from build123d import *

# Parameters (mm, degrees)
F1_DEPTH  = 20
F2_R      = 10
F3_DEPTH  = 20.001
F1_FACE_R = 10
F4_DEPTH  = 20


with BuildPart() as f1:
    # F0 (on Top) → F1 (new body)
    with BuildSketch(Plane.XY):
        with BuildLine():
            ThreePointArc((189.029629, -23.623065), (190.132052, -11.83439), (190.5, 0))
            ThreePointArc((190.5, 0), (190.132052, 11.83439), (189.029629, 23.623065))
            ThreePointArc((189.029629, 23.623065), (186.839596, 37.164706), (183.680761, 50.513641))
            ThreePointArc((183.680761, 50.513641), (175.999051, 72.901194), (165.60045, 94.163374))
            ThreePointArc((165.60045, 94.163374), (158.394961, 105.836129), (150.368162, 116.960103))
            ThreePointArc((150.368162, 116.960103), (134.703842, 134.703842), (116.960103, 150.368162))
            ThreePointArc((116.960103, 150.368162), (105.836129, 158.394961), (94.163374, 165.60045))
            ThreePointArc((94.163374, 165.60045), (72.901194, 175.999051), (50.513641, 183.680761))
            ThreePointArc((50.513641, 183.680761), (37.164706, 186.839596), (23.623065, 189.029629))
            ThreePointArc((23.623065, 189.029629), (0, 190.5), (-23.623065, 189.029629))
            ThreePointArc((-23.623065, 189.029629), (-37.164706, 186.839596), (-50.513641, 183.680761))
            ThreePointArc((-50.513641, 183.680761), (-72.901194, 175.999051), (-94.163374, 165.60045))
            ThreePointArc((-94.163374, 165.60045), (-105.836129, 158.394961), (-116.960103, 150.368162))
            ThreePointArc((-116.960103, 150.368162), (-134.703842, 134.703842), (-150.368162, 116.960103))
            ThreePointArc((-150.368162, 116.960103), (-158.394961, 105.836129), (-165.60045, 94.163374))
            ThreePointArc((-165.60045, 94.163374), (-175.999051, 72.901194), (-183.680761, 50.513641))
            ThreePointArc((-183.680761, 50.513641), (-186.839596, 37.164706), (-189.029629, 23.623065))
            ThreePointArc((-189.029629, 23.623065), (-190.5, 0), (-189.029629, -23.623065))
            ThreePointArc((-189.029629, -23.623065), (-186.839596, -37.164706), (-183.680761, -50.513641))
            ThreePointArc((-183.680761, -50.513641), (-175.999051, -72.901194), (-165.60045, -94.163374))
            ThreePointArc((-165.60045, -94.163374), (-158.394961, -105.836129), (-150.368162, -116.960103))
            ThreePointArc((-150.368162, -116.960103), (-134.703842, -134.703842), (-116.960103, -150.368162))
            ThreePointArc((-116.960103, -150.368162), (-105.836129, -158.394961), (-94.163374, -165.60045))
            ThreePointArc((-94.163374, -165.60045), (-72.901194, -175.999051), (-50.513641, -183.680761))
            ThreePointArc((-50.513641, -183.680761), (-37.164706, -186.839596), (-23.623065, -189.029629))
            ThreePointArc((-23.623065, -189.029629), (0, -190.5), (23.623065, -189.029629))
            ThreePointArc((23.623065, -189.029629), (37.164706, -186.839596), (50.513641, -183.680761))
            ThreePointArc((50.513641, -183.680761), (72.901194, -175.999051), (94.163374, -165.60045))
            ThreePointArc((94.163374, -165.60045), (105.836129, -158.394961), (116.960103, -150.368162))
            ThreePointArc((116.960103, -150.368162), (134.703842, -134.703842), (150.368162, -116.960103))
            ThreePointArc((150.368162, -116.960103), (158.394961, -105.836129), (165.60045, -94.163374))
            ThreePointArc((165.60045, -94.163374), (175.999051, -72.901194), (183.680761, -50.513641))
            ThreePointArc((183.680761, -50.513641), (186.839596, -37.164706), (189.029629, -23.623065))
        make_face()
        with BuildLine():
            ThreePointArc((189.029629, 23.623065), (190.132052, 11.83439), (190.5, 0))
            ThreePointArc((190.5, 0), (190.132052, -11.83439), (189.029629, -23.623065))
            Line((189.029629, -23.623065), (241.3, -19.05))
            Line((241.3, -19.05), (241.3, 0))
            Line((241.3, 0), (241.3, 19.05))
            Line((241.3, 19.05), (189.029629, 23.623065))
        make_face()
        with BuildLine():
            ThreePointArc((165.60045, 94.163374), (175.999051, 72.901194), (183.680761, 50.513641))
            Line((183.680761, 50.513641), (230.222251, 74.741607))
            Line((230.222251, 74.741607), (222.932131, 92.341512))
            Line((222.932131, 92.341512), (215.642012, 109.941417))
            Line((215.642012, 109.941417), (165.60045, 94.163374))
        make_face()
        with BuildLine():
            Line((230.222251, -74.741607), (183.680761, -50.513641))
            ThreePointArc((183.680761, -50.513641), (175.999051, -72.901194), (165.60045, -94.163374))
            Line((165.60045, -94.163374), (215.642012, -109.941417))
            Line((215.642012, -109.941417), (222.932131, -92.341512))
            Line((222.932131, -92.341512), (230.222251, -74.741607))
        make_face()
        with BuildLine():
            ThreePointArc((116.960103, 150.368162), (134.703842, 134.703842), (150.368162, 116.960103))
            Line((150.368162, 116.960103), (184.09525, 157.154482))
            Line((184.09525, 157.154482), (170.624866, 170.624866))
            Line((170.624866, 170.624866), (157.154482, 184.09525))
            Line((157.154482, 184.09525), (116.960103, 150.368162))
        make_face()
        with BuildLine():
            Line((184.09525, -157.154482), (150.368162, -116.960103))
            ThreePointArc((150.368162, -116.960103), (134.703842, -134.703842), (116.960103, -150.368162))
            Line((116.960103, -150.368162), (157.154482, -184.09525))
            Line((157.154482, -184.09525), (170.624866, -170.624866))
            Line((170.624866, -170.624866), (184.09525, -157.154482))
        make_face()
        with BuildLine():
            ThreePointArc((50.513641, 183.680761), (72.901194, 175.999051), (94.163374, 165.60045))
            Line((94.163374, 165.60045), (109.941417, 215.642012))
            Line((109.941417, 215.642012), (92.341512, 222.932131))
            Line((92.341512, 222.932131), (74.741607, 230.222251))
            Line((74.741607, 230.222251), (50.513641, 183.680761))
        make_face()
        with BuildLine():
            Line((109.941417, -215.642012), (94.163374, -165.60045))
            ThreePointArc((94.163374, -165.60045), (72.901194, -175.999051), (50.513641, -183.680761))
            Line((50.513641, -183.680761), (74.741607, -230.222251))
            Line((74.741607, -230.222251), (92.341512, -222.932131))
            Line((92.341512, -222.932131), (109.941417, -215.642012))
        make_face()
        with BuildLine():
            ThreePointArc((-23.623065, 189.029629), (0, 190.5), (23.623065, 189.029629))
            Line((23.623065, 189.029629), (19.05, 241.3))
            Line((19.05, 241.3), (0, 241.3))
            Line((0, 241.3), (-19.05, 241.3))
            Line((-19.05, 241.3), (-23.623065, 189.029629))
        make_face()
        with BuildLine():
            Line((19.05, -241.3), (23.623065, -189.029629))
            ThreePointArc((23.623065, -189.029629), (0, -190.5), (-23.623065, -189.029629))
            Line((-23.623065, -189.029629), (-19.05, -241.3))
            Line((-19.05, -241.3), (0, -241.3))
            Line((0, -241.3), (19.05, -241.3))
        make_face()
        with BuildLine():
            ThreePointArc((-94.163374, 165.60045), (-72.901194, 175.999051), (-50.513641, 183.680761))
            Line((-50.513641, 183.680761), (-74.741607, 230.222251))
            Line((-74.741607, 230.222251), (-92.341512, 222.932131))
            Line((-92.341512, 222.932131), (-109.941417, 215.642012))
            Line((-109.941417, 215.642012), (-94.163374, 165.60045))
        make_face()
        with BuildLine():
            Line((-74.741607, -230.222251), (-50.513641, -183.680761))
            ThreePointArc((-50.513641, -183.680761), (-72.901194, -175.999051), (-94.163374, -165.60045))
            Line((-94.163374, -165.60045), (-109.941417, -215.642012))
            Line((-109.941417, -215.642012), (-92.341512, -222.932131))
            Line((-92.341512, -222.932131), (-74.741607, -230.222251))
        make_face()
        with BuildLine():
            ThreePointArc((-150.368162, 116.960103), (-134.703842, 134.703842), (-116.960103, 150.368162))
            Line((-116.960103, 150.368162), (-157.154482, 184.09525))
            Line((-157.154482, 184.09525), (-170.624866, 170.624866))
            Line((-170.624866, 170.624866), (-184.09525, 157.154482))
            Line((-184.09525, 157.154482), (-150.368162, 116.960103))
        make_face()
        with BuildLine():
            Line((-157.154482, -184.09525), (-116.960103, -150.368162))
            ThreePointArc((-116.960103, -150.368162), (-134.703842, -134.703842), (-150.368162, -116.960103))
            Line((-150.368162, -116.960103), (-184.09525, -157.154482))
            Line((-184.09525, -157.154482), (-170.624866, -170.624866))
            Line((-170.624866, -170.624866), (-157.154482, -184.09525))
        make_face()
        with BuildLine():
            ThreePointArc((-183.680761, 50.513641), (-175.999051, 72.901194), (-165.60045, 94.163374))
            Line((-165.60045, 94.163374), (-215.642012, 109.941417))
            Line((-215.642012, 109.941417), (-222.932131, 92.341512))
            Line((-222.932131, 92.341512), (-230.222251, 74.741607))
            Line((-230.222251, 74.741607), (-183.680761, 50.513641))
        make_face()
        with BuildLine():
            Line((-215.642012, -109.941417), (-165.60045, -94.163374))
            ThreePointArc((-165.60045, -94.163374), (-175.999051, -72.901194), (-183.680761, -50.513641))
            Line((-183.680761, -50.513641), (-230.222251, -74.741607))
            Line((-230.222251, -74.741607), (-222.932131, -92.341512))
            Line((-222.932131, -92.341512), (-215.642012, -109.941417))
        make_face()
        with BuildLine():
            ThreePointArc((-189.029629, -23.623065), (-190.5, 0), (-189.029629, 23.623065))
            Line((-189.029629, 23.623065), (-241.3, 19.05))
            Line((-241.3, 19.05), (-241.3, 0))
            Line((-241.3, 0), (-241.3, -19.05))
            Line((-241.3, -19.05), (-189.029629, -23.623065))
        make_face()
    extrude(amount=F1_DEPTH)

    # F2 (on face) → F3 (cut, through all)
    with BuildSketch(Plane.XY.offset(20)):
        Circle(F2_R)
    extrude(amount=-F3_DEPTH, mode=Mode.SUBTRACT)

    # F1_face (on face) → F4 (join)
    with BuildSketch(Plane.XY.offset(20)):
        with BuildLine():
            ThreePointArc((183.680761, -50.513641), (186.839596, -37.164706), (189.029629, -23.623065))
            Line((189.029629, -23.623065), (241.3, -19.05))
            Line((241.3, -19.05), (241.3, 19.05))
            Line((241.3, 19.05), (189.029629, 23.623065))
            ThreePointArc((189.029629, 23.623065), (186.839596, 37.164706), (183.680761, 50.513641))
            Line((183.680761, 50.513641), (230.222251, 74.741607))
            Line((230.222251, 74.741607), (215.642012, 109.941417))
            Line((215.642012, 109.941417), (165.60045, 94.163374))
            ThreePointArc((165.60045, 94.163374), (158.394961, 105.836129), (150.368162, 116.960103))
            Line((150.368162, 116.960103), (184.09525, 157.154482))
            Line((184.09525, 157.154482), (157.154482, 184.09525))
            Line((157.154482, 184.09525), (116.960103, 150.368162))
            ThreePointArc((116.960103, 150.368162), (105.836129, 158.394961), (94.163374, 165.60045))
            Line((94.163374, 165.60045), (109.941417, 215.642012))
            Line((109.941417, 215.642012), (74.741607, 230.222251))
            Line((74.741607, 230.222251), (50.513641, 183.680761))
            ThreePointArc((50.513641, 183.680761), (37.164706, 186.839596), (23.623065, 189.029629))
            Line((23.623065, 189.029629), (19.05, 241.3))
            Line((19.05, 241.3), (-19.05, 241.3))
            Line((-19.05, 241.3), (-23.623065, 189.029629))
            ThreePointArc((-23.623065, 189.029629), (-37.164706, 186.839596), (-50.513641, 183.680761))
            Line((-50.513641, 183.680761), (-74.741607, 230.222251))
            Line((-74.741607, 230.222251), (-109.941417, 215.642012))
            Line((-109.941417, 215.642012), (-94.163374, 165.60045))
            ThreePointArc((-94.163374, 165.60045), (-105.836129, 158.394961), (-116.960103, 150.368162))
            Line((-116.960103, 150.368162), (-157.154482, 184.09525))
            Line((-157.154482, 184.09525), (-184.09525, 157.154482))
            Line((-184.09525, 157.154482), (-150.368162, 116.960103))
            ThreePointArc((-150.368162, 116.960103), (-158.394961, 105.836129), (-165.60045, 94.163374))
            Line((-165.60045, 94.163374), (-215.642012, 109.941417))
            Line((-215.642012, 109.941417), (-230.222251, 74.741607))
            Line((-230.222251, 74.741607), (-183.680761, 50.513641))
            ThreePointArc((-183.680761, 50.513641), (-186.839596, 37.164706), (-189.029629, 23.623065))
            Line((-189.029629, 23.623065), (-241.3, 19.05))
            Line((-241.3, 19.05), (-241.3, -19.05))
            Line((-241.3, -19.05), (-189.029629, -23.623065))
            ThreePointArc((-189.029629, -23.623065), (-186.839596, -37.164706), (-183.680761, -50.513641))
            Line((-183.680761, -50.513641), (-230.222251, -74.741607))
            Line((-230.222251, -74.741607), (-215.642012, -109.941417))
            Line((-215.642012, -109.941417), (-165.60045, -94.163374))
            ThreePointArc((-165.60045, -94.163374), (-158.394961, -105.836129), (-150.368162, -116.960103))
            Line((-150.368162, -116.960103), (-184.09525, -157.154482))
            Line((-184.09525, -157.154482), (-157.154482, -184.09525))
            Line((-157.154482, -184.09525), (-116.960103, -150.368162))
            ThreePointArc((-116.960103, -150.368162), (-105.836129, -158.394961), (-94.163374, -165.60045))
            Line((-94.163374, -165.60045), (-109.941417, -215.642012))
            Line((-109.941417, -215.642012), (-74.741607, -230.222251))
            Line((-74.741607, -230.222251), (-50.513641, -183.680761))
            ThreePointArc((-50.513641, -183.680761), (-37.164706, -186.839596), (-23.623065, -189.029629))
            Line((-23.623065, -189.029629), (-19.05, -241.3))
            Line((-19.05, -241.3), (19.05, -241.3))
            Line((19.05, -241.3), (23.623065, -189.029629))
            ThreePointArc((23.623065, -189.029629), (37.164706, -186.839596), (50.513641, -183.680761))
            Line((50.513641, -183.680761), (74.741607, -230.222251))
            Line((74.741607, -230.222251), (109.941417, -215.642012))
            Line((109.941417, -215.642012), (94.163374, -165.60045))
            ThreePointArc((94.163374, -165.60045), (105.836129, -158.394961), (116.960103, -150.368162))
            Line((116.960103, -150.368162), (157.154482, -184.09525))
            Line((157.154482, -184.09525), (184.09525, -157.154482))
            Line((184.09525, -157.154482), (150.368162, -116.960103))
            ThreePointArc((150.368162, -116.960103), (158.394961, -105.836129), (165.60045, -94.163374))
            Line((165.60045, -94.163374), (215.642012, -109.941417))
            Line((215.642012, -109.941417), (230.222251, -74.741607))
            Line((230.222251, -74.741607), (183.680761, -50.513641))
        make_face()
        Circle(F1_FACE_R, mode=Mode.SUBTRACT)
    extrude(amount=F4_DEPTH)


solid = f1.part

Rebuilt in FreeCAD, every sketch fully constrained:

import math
import FreeCAD as App
import Part
import Sketcher

V = App.Vector
Q = App.Units.Quantity

doc = App.newDocument("Part")
body = doc.addObject("PartDesign::Body", "Body")

sketch1 = body.newObject("Sketcher::SketchObject", "Sketch")
sketch1.AttachmentSupport = (doc.getObject("XY_Plane"), [""])
sketch1.MapMode = "FlatFace"
sketch1.addGeometry(Part.ArcOfCircle(Part.Circle(V(0, 0, 0), V(0, 0, 1), 190), math.radians(7.12), math.radians(15.38)), False)
sketch1.addGeometry(Part.LineSegment(V(184, 51, 0), V(230, 75, 0)), False)
sketch1.addGeometry(Part.LineSegment(V(230, 75, 0), V(223, 92, 0)), False)
sketch1.addGeometry(Part.LineSegment(V(223, 92, 0), V(216, 110, 0)), False)
sketch1.addGeometry(Part.LineSegment(V(216, 110, 0), V(166, 94, 0)), False)
sketch1.addGeometry(Part.ArcOfCircle(Part.Circle(V(0, 0, 0), V(0, 0, 1), 191), math.radians(29.62), math.radians(37.88)), False)
sketch1.addGeometry(Part.LineSegment(V(150, 117, 0), V(184, 157, 0)), False)
sketch1.addGeometry(Part.LineSegment(V(184, 157, 0), V(157, 184, 0)), False)
sketch1.addGeometry(Part.LineSegment(V(157, 184, 0), V(117, 150, 0)), False)
sketch1.addGeometry(Part.ArcOfCircle(Part.Circle(V(0, 0, 0), V(0, 0, 1), 191), math.radians(52.12), math.radians(60.38)), False)
sketch1.addGeometry(Part.LineSegment(V(94, 166, 0), V(110, 216, 0)), False)
sketch1.addGeometry(Part.LineSegment(V(110, 216, 0), V(92, 223, 0)), False)
sketch1.addGeometry(Part.LineSegment(V(92, 223, 0), V(75, 230, 0)), False)
sketch1.addGeometry(Part.LineSegment(V(75, 230, 0), V(51, 184, 0)), False)
sketch1.addGeometry(Part.ArcOfCircle(Part.Circle(V(0, 0, 0), V(0, 0, 1), 190), math.radians(74.62), math.radians(82.88)), False)
sketch1.addGeometry(Part.LineSegment(V(24, 189, 0), V(19, 241, 0)), False)
sketch1.addGeometry(Part.LineSegment(V(19, 241, 0), V(-19, 241, 0)), False)
sketch1.addGeometry(Part.LineSegment(V(-19, 241, 0), V(-24, 189, 0)), False)
sketch1.addGeometry(Part.ArcOfCircle(Part.Circle(V(0, 0, 0), V(0, 0, 1), 190), math.radians(97.12), math.radians(105.38)), False)
sketch1.addGeometry(Part.LineSegment(V(-51, 184, 0), V(-75, 230, 0)), False)
sketch1.addGeometry(Part.LineSegment(V(-75, 230, 0), V(-92, 223, 0)), False)
sketch1.addGeometry(Part.LineSegment(V(-92, 223, 0), V(-110, 216, 0)), False)
sketch1.addGeometry(Part.LineSegment(V(-110, 216, 0), V(-94, 166, 0)), False)
sketch1.addGeometry(Part.ArcOfCircle(Part.Circle(V(0, 0, 0), V(0, 0, 1), 191), math.radians(119.62), math.radians(127.88)), False)
sketch1.addGeometry(Part.LineSegment(V(-117, 150, 0), V(-157, 184, 0)), False)
sketch1.addGeometry(Part.LineSegment(V(-157, 184, 0), V(-184, 157, 0)), False)
sketch1.addGeometry(Part.LineSegment(V(-184, 157, 0), V(-150, 117, 0)), False)
sketch1.addGeometry(Part.ArcOfCircle(Part.Circle(V(0, 0, 0), V(0, 0, 1), 191), math.radians(142.12), math.radians(150.38)), False)
sketch1.addGeometry(Part.LineSegment(V(-166, 94, 0), V(-216, 110, 0)), False)
sketch1.addGeometry(Part.LineSegment(V(-216, 110, 0), V(-223, 92, 0)), False)
sketch1.addGeometry(Part.LineSegment(V(-223, 92, 0), V(-230, 75, 0)), False)
sketch1.addGeometry(Part.LineSegment(V(-230, 75, 0), V(-184, 51, 0)), False)
sketch1.addGeometry(Part.ArcOfCircle(Part.Circle(V(0, 0, 0), V(0, 0, 1), 190), math.radians(164.62), math.radians(172.88)), False)
sketch1.addGeometry(Part.LineSegment(V(-189, 24, 0), V(-241, 19, 0)), False)
sketch1.addGeometry(Part.LineSegment(V(-241, 19, 0), V(-241, -19, 0)), False)
sketch1.addGeometry(Part.LineSegment(V(-241, -19, 0), V(-189, -24, 0)), False)
sketch1.addGeometry(Part.ArcOfCircle(Part.Circle(V(0, 0, 0), V(0, 0, 1), 190), math.radians(-172.88), math.radians(-164.62)), False)
sketch1.addGeometry(Part.LineSegment(V(-184, -51, 0), V(-230, -75, 0)), False)
sketch1.addGeometry(Part.LineSegment(V(-230, -75, 0), V(-223, -92, 0)), False)
sketch1.addGeometry(Part.LineSegment(V(-223, -92, 0), V(-216, -110, 0)), False)
sketch1.addGeometry(Part.LineSegment(V(-216, -110, 0), V(-166, -94, 0)), False)
sketch1.addGeometry(Part.ArcOfCircle(Part.Circle(V(0, 0, 0), V(0, 0, 1), 191), math.radians(-150.38), math.radians(-142.12)), False)
sketch1.addGeometry(Part.LineSegment(V(-150, -117, 0), V(-184, -157, 0)), False)
sketch1.addGeometry(Part.LineSegment(V(-184, -157, 0), V(-157, -184, 0)), False)
sketch1.addGeometry(Part.LineSegment(V(-157, -184, 0), V(-117, -150, 0)), False)
sketch1.addGeometry(Part.ArcOfCircle(Part.Circle(V(0, 0, 0), V(0, 0, 1), 191), math.radians(-127.88), math.radians(-119.62)), False)
sketch1.addGeometry(Part.LineSegment(V(-94, -166, 0), V(-110, -216, 0)), False)
sketch1.addGeometry(Part.LineSegment(V(-110, -216, 0), V(-92, -223, 0)), False)
sketch1.addGeometry(Part.LineSegment(V(-92, -223, 0), V(-75, -230, 0)), False)
sketch1.addGeometry(Part.LineSegment(V(-75, -230, 0), V(-51, -184, 0)), False)
sketch1.addGeometry(Part.ArcOfCircle(Part.Circle(V(0, 0, 0), V(0, 0, 1), 190), math.radians(-105.38), math.radians(-97.12)), False)
sketch1.addGeometry(Part.LineSegment(V(-24, -189, 0), V(-19, -241, 0)), False)
sketch1.addGeometry(Part.LineSegment(V(-19, -241, 0), V(19, -241, 0)), False)
sketch1.addGeometry(Part.LineSegment(V(19, -241, 0), V(24, -189, 0)), False)
sketch1.addGeometry(Part.ArcOfCircle(Part.Circle(V(0, 0, 0), V(0, 0, 1), 190), math.radians(-82.88), math.radians(-74.62)), False)
sketch1.addGeometry(Part.LineSegment(V(51, -184, 0), V(75, -230, 0)), False)
sketch1.addGeometry(Part.LineSegment(V(75, -230, 0), V(92, -223, 0)), False)
sketch1.addGeometry(Part.LineSegment(V(92, -223, 0), V(110, -216, 0)), False)
sketch1.addGeometry(Part.LineSegment(V(110, -216, 0), V(94, -166, 0)), False)
sketch1.addGeometry(Part.ArcOfCircle(Part.Circle(V(0, 0, 0), V(0, 0, 1), 191), math.radians(-60.38), math.radians(-52.12)), False)
sketch1.addGeometry(Part.LineSegment(V(117, -150, 0), V(157, -184, 0)), False)
sketch1.addGeometry(Part.LineSegment(V(157, -184, 0), V(184, -157, 0)), False)
sketch1.addGeometry(Part.LineSegment(V(184, -157, 0), V(150, -117, 0)), False)
sketch1.addGeometry(Part.ArcOfCircle(Part.Circle(V(0, 0, 0), V(0, 0, 1), 191), math.radians(-37.88), math.radians(-29.62)), False)
sketch1.addGeometry(Part.LineSegment(V(166, -94, 0), V(216, -110, 0)), False)
sketch1.addGeometry(Part.LineSegment(V(216, -110, 0), V(223, -92, 0)), False)
sketch1.addGeometry(Part.LineSegment(V(223, -92, 0), V(230, -75, 0)), False)
sketch1.addGeometry(Part.LineSegment(V(230, -75, 0), V(184, -51, 0)), False)
sketch1.addGeometry(Part.ArcOfCircle(Part.Circle(V(0, 0, 0), V(0, 0, 1), 190), math.radians(-15.38), math.radians(-7.12)), False)
sketch1.addGeometry(Part.LineSegment(V(189, -24, 0), V(241, -19, 0)), False)
sketch1.addGeometry(Part.LineSegment(V(241, -19, 0), V(241, 19, 0)), False)
sketch1.addGeometry(Part.LineSegment(V(241, 19, 0), V(189, 24, 0)), False)
sketch1.addConstraint(Sketcher.Constraint("Coincident", 0, 2, 1, 1))
sketch1.addConstraint(Sketcher.Constraint("Coincident", 1, 2, 2, 1))
sketch1.addConstraint(Sketcher.Constraint("Coincident", 2, 2, 3, 1))
sketch1.addConstraint(Sketcher.Constraint("Coincident", 3, 2, 4, 1))
sketch1.addConstraint(Sketcher.Constraint("Coincident", 4, 2, 5, 1))
sketch1.addConstraint(Sketcher.Constraint("Coincident", 5, 2, 6, 1))
sketch1.addConstraint(Sketcher.Constraint("Coincident", 6, 2, 7, 1))
sketch1.addConstraint(Sketcher.Constraint("Coincident", 7, 2, 8, 1))
sketch1.addConstraint(Sketcher.Constraint("Coincident", 8, 2, 9, 1))
sketch1.addConstraint(Sketcher.Constraint("Coincident", 9, 2, 10, 1))
sketch1.addConstraint(Sketcher.Constraint("Coincident", 10, 2, 11, 1))
sketch1.addConstraint(Sketcher.Constraint("Coincident", 11, 2, 12, 1))
sketch1.addConstraint(Sketcher.Constraint("Coincident", 12, 2, 13, 1))
sketch1.addConstraint(Sketcher.Constraint("Coincident", 13, 2, 14, 1))
sketch1.addConstraint(Sketcher.Constraint("Coincident", 14, 2, 15, 1))
sketch1.addConstraint(Sketcher.Constraint("Coincident", 15, 2, 16, 1))
sketch1.addConstraint(Sketcher.Constraint("Coincident", 16, 2, 17, 1))
sketch1.addConstraint(Sketcher.Constraint("Coincident", 17, 2, 18, 1))
sketch1.addConstraint(Sketcher.Constraint("Coincident", 18, 2, 19, 1))
sketch1.addConstraint(Sketcher.Constraint("Coincident", 19, 2, 20, 1))
sketch1.addConstraint(Sketcher.Constraint("Coincident", 20, 2, 21, 1))
sketch1.addConstraint(Sketcher.Constraint("Coincident", 21, 2, 22, 1))
sketch1.addConstraint(Sketcher.Constraint("Coincident", 22, 2, 23, 1))
sketch1.addConstraint(Sketcher.Constraint("Coincident", 23, 2, 24, 1))
sketch1.addConstraint(Sketcher.Constraint("Coincident", 24, 2, 25, 1))
sketch1.addConstraint(Sketcher.Constraint("Coincident", 25, 2, 26, 1))
sketch1.addConstraint(Sketcher.Constraint("Coincident", 26, 2, 27, 1))
sketch1.addConstraint(Sketcher.Constraint("Coincident", 27, 2, 28, 1))
sketch1.addConstraint(Sketcher.Constraint("Coincident", 28, 2, 29, 1))
sketch1.addConstraint(Sketcher.Constraint("Coincident", 29, 2, 30, 1))
sketch1.addConstraint(Sketcher.Constraint("Coincident", 30, 2, 31, 1))
sketch1.addConstraint(Sketcher.Constraint("Coincident", 31, 2, 32, 1))
sketch1.addConstraint(Sketcher.Constraint("Coincident", 32, 2, 33, 1))
sketch1.addConstraint(Sketcher.Constraint("Coincident", 33, 2, 34, 1))
sketch1.addConstraint(Sketcher.Constraint("Coincident", 34, 2, 35, 1))
sketch1.addConstraint(Sketcher.Constraint("Coincident", 35, 2, 36, 1))
sketch1.addConstraint(Sketcher.Constraint("Coincident", 36, 2, 37, 1))
sketch1.addConstraint(Sketcher.Constraint("Coincident", 37, 2, 38, 1))
sketch1.addConstraint(Sketcher.Constraint("Coincident", 38, 2, 39, 1))
sketch1.addConstraint(Sketcher.Constraint("Coincident", 39, 2, 40, 1))
sketch1.addConstraint(Sketcher.Constraint("Coincident", 40, 2, 41, 1))
sketch1.addConstraint(Sketcher.Constraint("Coincident", 41, 2, 42, 1))
sketch1.addConstraint(Sketcher.Constraint("Coincident", 42, 2, 43, 1))
sketch1.addConstraint(Sketcher.Constraint("Coincident", 43, 2, 44, 1))
sketch1.addConstraint(Sketcher.Constraint("Coincident", 44, 2, 45, 1))
sketch1.addConstraint(Sketcher.Constraint("Coincident", 45, 2, 46, 1))
sketch1.addConstraint(Sketcher.Constraint("Coincident", 46, 2, 47, 1))
sketch1.addConstraint(Sketcher.Constraint("Coincident", 47, 2, 48, 1))
sketch1.addConstraint(Sketcher.Constraint("Coincident", 48, 2, 49, 1))
sketch1.addConstraint(Sketcher.Constraint("Coincident", 49, 2, 50, 1))
sketch1.addConstraint(Sketcher.Constraint("Coincident", 50, 2, 51, 1))
sketch1.addConstraint(Sketcher.Constraint("Coincident", 51, 2, 52, 1))
sketch1.addConstraint(Sketcher.Constraint("Coincident", 52, 2, 53, 1))
sketch1.addConstraint(Sketcher.Constraint("Coincident", 53, 2, 54, 1))
sketch1.addConstraint(Sketcher.Constraint("Coincident", 54, 2, 55, 1))
sketch1.addConstraint(Sketcher.Constraint("Coincident", 55, 2, 56, 1))
sketch1.addConstraint(Sketcher.Constraint("Coincident", 56, 2, 57, 1))
sketch1.addConstraint(Sketcher.Constraint("Coincident", 57, 2, 58, 1))
sketch1.addConstraint(Sketcher.Constraint("Coincident", 58, 2, 59, 1))
sketch1.addConstraint(Sketcher.Constraint("Coincident", 59, 2, 60, 1))
sketch1.addConstraint(Sketcher.Constraint("Coincident", 60, 2, 61, 1))
sketch1.addConstraint(Sketcher.Constraint("Coincident", 61, 2, 62, 1))
sketch1.addConstraint(Sketcher.Constraint("Coincident", 62, 2, 63, 1))
sketch1.addConstraint(Sketcher.Constraint("Coincident", 63, 2, 64, 1))
sketch1.addConstraint(Sketcher.Constraint("Coincident", 64, 2, 65, 1))
sketch1.addConstraint(Sketcher.Constraint("Coincident", 65, 2, 66, 1))
sketch1.addConstraint(Sketcher.Constraint("Coincident", 66, 2, 67, 1))
sketch1.addConstraint(Sketcher.Constraint("Coincident", 67, 2, 68, 1))
sketch1.addConstraint(Sketcher.Constraint("Coincident", 68, 2, 69, 1))
sketch1.addConstraint(Sketcher.Constraint("Coincident", 69, 2, 70, 1))
sketch1.addConstraint(Sketcher.Constraint("Coincident", 70, 2, 71, 1))
sketch1.addConstraint(Sketcher.Constraint("Coincident", 71, 2, 0, 1))
sketch1.addConstraint(Sketcher.Constraint("Horizontal", 16))
sketch1.addConstraint(Sketcher.Constraint("Vertical", 34))
sketch1.addConstraint(Sketcher.Constraint("Horizontal", 52))
sketch1.addConstraint(Sketcher.Constraint("Vertical", 70))
sketch1.addConstraint(Sketcher.Constraint("Equal", 5, 9))
sketch1.addConstraint(Sketcher.Constraint("Equal", 0, 14))
sketch1.addConstraint(Sketcher.Constraint("Equal", 14, 18))
sketch1.addConstraint(Sketcher.Constraint("Equal", 9, 23))
sketch1.addConstraint(Sketcher.Constraint("Equal", 23, 27))
sketch1.addConstraint(Sketcher.Constraint("Equal", 18, 32))
sketch1.addConstraint(Sketcher.Constraint("Equal", 32, 36))
sketch1.addConstraint(Sketcher.Constraint("Equal", 27, 41))
sketch1.addConstraint(Sketcher.Constraint("Equal", 41, 45))
sketch1.addConstraint(Sketcher.Constraint("Equal", 36, 50))
sketch1.addConstraint(Sketcher.Constraint("Equal", 50, 54))
sketch1.addConstraint(Sketcher.Constraint("Equal", 45, 59))
sketch1.addConstraint(Sketcher.Constraint("Equal", 59, 63))
sketch1.addConstraint(Sketcher.Constraint("Equal", 54, 68))
sketch1.addConstraint(Sketcher.Constraint("Symmetric", 0, 3, 36, 3, -1, 1))
sketch1.addConstraint(Sketcher.Constraint("Symmetric", 5, 3, 41, 3, -1, 1))
sketch1.addConstraint(Sketcher.Constraint("Symmetric", 9, 3, 45, 3, -1, 1))
sketch1.addConstraint(Sketcher.Constraint("Symmetric", 14, 3, 50, 3, -1, 1))
sketch1.addConstraint(Sketcher.Constraint("Symmetric", 18, 3, 54, 3, -1, 1))
sketch1.addConstraint(Sketcher.Constraint("Symmetric", 23, 3, 59, 3, -1, 1))
sketch1.addConstraint(Sketcher.Constraint("Symmetric", 27, 3, 63, 3, -1, 1))
sketch1.addConstraint(Sketcher.Constraint("Symmetric", 32, 3, 68, 3, -1, 1))
sketch1.addConstraint(Sketcher.Constraint("Symmetric", 1, 2, 37, 2, -1, 1))
sketch1.addConstraint(Sketcher.Constraint("Symmetric", 2, 2, 38, 2, -1, 1))
sketch1.addConstraint(Sketcher.Constraint("Symmetric", 3, 2, 39, 2, -1, 1))
sketch1.addConstraint(Sketcher.Constraint("Symmetric", 6, 2, 42, 2, -1, 1))
sketch1.addConstraint(Sketcher.Constraint("Symmetric", 7, 2, 43, 2, -1, 1))
sketch1.addConstraint(Sketcher.Constraint("Symmetric", 10, 2, 46, 2, -1, 1))
sketch1.addConstraint(Sketcher.Constraint("Symmetric", 11, 2, 47, 2, -1, 1))
sketch1.addConstraint(Sketcher.Constraint("Symmetric", 12, 2, 48, 2, -1, 1))
sketch1.addConstraint(Sketcher.Constraint("Symmetric", 15, 2, 51, 2, -1, 1))
sketch1.addConstraint(Sketcher.Constraint("Symmetric", 19, 2, 55, 2, -1, 1))
sketch1.addConstraint(Sketcher.Constraint("Symmetric", 20, 2, 56, 2, -1, 1))
sketch1.addConstraint(Sketcher.Constraint("Symmetric", 21, 2, 57, 2, -1, 1))
sketch1.addConstraint(Sketcher.Constraint("Symmetric", 24, 2, 60, 2, -1, 1))
sketch1.addConstraint(Sketcher.Constraint("Symmetric", 25, 2, 61, 2, -1, 1))
sketch1.addConstraint(Sketcher.Constraint("Symmetric", 28, 2, 64, 2, -1, 1))
sketch1.addConstraint(Sketcher.Constraint("Symmetric", 29, 2, 65, 2, -1, 1))
sketch1.addConstraint(Sketcher.Constraint("Symmetric", 30, 2, 66, 2, -1, 1))
sketch1.addConstraint(Sketcher.Constraint("Symmetric", 33, 2, 69, 2, -1, 1))
sketch1.addConstraint(Sketcher.Constraint("Symmetric", 14, 3, 18, 3, -2))
sketch1.addConstraint(Sketcher.Constraint("Symmetric", 9, 3, 23, 3, -2))
sketch1.addConstraint(Sketcher.Constraint("Symmetric", 5, 3, 27, 3, -2))
sketch1.addConstraint(Sketcher.Constraint("Symmetric", 0, 3, 32, 3, -2))
sketch1.addConstraint(Sketcher.Constraint("Symmetric", 12, 2, 19, 2, -2))
sketch1.addConstraint(Sketcher.Constraint("Symmetric", 11, 2, 20, 2, -2))
sketch1.addConstraint(Sketcher.Constraint("Symmetric", 10, 2, 21, 2, -2))
sketch1.addConstraint(Sketcher.Constraint("Symmetric", 7, 2, 24, 2, -2))
sketch1.addConstraint(Sketcher.Constraint("Symmetric", 6, 2, 25, 2, -2))
sketch1.addConstraint(Sketcher.Constraint("Symmetric", 3, 2, 28, 2, -2))
sketch1.addConstraint(Sketcher.Constraint("Symmetric", 2, 2, 29, 2, -2))
sketch1.addConstraint(Sketcher.Constraint("Symmetric", 1, 2, 30, 2, -2))
sketch1.addConstraint(Sketcher.Constraint("Parallel", 2, 3))
sketch1.addConstraint(Sketcher.Constraint("Parallel", 11, 12))
sketch1.addConstraint(Sketcher.Constraint("Perpendicular", 1, 19))
sketch1.addConstraint(Sketcher.Constraint("Perpendicular", 3, 20))
sketch1.addConstraint(Sketcher.Constraint("Perpendicular", 4, 22))
sketch1.addConstraint(Sketcher.Constraint("Perpendicular", 6, 24))
sketch1.addConstraint(Sketcher.Constraint("Perpendicular", 7, 25))
sketch1.addConstraint(Sketcher.Constraint("Perpendicular", 8, 26))
sketch1.addConstraint(Sketcher.Constraint("Perpendicular", 10, 28))
sketch1.addConstraint(Sketcher.Constraint("Perpendicular", 13, 31))
sketch1.addConstraint(Sketcher.Constraint("Perpendicular", 15, 33))
sketch1.addConstraint(Sketcher.Constraint("Perpendicular", 17, 35))
sketch1.addConstraint(Sketcher.Constraint("Perpendicular", 19, 37))
sketch1.addConstraint(Sketcher.Constraint("Perpendicular", 22, 40))
sketch1.addConstraint(Sketcher.Constraint("Perpendicular", 24, 42))
sketch1.addConstraint(Sketcher.Constraint("Perpendicular", 26, 44))
sketch1.addConstraint(Sketcher.Constraint("Perpendicular", 28, 46))
sketch1.addConstraint(Sketcher.Constraint("Perpendicular", 31, 49))
sketch1.addConstraint(Sketcher.Constraint("Perpendicular", 33, 51))
sketch1.addConstraint(Sketcher.Constraint("Perpendicular", 35, 53))
sketch1.addConstraint(Sketcher.Constraint("Perpendicular", 37, 55))
sketch1.addConstraint(Sketcher.Constraint("Perpendicular", 40, 58))
sketch1.addConstraint(Sketcher.Constraint("Perpendicular", 42, 60))
sketch1.addConstraint(Sketcher.Constraint("Perpendicular", 44, 62))
sketch1.addConstraint(Sketcher.Constraint("Perpendicular", 46, 64))
sketch1.addConstraint(Sketcher.Constraint("Perpendicular", 49, 67))
sketch1.addConstraint(Sketcher.Constraint("Perpendicular", 51, 69))
sketch1.addConstraint(Sketcher.Constraint("Perpendicular", 53, 71))
sketch1.addConstraint(Sketcher.Constraint("Horizontal", 14, 2, 17, 2))
sketch1.addConstraint(Sketcher.Constraint("Horizontal", 13, 2, 18, 2))
sketch1.addConstraint(Sketcher.Constraint("Horizontal", 9, 2, 22, 2))
sketch1.addConstraint(Sketcher.Constraint("Horizontal", 8, 2, 23, 2))
sketch1.addConstraint(Sketcher.Constraint("Horizontal", 50, 2, 53, 2))
sketch1.addConstraint(Sketcher.Constraint("Horizontal", 35, 2, 68, 2))
sketch1.addConstraint(Sketcher.Constraint("Horizontal", 34, 2, 69, 2))
sketch1.addConstraint(Sketcher.Constraint("Horizontal", 33, 2, 70, 2))
sketch1.addConstraint(Sketcher.Constraint("Equal", 52, 34))
sketch1.addConstraint(Sketcher.Constraint("Equal", 2, 3))
sketch1.addConstraint(Sketcher.Constraint("Equal", 1, 4))
sketch1.addConstraint(Sketcher.Constraint("Equal", 4, 6))
sketch1.addConstraint(Sketcher.Constraint("Equal", 6, 8))
sketch1.addConstraint(Sketcher.Constraint("Equal", 8, 10))
sketch1.addConstraint(Sketcher.Constraint("Equal", 3, 11))
sketch1.addConstraint(Sketcher.Constraint("Equal", 11, 12))
sketch1.addConstraint(Sketcher.Constraint("Equal", 10, 13))
sketch1.addConstraint(Sketcher.Constraint("Equal", 13, 15))
sketch1.addConstraint(Sketcher.Constraint("Equal", 31, 33))
sketch1.addConstraint(Sketcher.Constraint("DistanceX", 16, 2, 16, 1, Q("1.5 in")))
sketch1.addConstraint(Sketcher.Constraint("Angle", 6, Q("50 deg")))
sketch1.addConstraint(Sketcher.Constraint("Angle", 15, Q("95 deg")))
sketch1.addConstraint(Sketcher.Constraint("Distance", 7, Q("1.5 in")))
sketch1.addConstraint(Sketcher.Constraint("DistanceY", -1, 1, 15, 2, Q("9.5 in")))
sketch1.addConstraint(Sketcher.Constraint("DistanceX", 33, 2, -1, 1, Q("9.5 in")))
sketch1.addConstraint(Sketcher.Constraint("Angle", 1, Q("27.5 deg")))
sketch1.addConstraint(Sketcher.Constraint("Angle", 2, Q("112.500002 deg")))
sketch1.addConstraint(Sketcher.Constraint("Angle", 4, Q("-162.500001 deg")))
sketch1.addConstraint(Sketcher.Constraint("Distance", 2, Q("0.75 in")))
sketch1.addConstraint(Sketcher.Constraint("Radius", 5, Q("190.500069 mm")))
sketch1.addConstraint(Sketcher.Constraint("Radius", 0, Q("190.499857 mm")))
sketch1.addConstraint(Sketcher.Constraint("DistanceX", -1, 1, 0, 3, Q("0.00014 mm")))
sketch1.addConstraint(Sketcher.Constraint("DistanceY", -1, 1, 14, 3, Q("0.00014 mm")))
sketch1.addConstraint(Sketcher.Constraint("DistanceX", -1, 1, 1, 2, Q("230.222251 mm")))
sketch1.addConstraint(Sketcher.Constraint("DistanceY", -1, 1, 2, 2, Q("92.341512 mm")))
sketch1.addConstraint(Sketcher.Constraint("DistanceX", -1, 1, 6, 2, Q("184.09525 mm")))
sketch1.addConstraint(Sketcher.Constraint("DistanceY", -1, 1, 6, 2, Q("157.154482 mm")))
sketch1.addConstraint(Sketcher.Constraint("DistanceY", -1, 1, 10, 2, Q("215.642012 mm")))
pad1 = body.newObject("PartDesign::Pad", "Pad")
pad1.Profile = sketch1
pad1.Length = 20

sketch2 = body.newObject("Sketcher::SketchObject", "Sketch001")
sketch2.AttachmentSupport = (doc.getObject("XY_Plane"), [""])
sketch2.MapMode = "FlatFace"
sketch2.AttachmentOffset = App.Placement(V(0, 0, 20), App.Rotation())
sketch2.addGeometry(Part.Circle(V(0, 0, 0), V(0, 0, 1), 10), False)
sketch2.addConstraint(Sketcher.Constraint("Coincident", 0, 3, -1, 1))
sketch2.addConstraint(Sketcher.Constraint("Diameter", 0, Q("20 mm")))
pocket1 = body.newObject("PartDesign::Pocket", "Pocket")
pocket1.Profile = sketch2
pocket1.Type = "ThroughAll"

sketch3 = body.newObject("Sketcher::SketchObject", "Sketch002")
sketch3.AttachmentSupport = (doc.getObject("XY_Plane"), [""])
sketch3.MapMode = "FlatFace"
sketch3.AttachmentOffset = App.Placement(V(0, 0, 20), App.Rotation())
sketch3.addGeometry(Part.ArcOfCircle(Part.Circle(V(0, 0, 0), V(0, 0, 1), 190), math.radians(-15.38), math.radians(-7.12)), False)
sketch3.addGeometry(Part.LineSegment(V(189, -24, 0), V(241, -19, 0)), False)
sketch3.addGeometry(Part.LineSegment(V(241, -19, 0), V(241, 19, 0)), False)
sketch3.addGeometry(Part.LineSegment(V(241, 19, 0), V(189, 24, 0)), False)
sketch3.addGeometry(Part.ArcOfCircle(Part.Circle(V(0, 0, 0), V(0, 0, 1), 190), math.radians(7.12), math.radians(15.38)), False)
sketch3.addGeometry(Part.LineSegment(V(184, 51, 0), V(230, 75, 0)), False)
sketch3.addGeometry(Part.LineSegment(V(230, 75, 0), V(216, 110, 0)), False)
sketch3.addGeometry(Part.LineSegment(V(216, 110, 0), V(166, 94, 0)), False)
sketch3.addGeometry(Part.ArcOfCircle(Part.Circle(V(0, 0, 0), V(0, 0, 1), 191), math.radians(29.62), math.radians(37.88)), False)
sketch3.addGeometry(Part.LineSegment(V(150, 117, 0), V(184, 157, 0)), False)
sketch3.addGeometry(Part.LineSegment(V(184, 157, 0), V(157, 184, 0)), False)
sketch3.addGeometry(Part.LineSegment(V(157, 184, 0), V(117, 150, 0)), False)
sketch3.addGeometry(Part.ArcOfCircle(Part.Circle(V(0, 0, 0), V(0, 0, 1), 191), math.radians(52.12), math.radians(60.38)), False)
sketch3.addGeometry(Part.LineSegment(V(94, 166, 0), V(110, 216, 0)), False)
sketch3.addGeometry(Part.LineSegment(V(110, 216, 0), V(75, 230, 0)), False)
sketch3.addGeometry(Part.LineSegment(V(75, 230, 0), V(51, 184, 0)), False)
sketch3.addGeometry(Part.ArcOfCircle(Part.Circle(V(0, 0, 0), V(0, 0, 1), 190), math.radians(74.62), math.radians(82.88)), False)
sketch3.addGeometry(Part.LineSegment(V(24, 189, 0), V(19, 241, 0)), False)
sketch3.addGeometry(Part.LineSegment(V(19, 241, 0), V(-19, 241, 0)), False)
sketch3.addGeometry(Part.LineSegment(V(-19, 241, 0), V(-24, 189, 0)), False)
sketch3.addGeometry(Part.ArcOfCircle(Part.Circle(V(0, 0, 0), V(0, 0, 1), 190), math.radians(97.12), math.radians(105.38)), False)
sketch3.addGeometry(Part.LineSegment(V(-51, 184, 0), V(-75, 230, 0)), False)
sketch3.addGeometry(Part.LineSegment(V(-75, 230, 0), V(-110, 216, 0)), False)
sketch3.addGeometry(Part.LineSegment(V(-110, 216, 0), V(-94, 166, 0)), False)
sketch3.addGeometry(Part.ArcOfCircle(Part.Circle(V(0, 0, 0), V(0, 0, 1), 191), math.radians(119.62), math.radians(127.88)), False)
sketch3.addGeometry(Part.LineSegment(V(-117, 150, 0), V(-157, 184, 0)), False)
sketch3.addGeometry(Part.LineSegment(V(-157, 184, 0), V(-184, 157, 0)), False)
sketch3.addGeometry(Part.LineSegment(V(-184, 157, 0), V(-150, 117, 0)), False)
sketch3.addGeometry(Part.ArcOfCircle(Part.Circle(V(0, 0, 0), V(0, 0, 1), 191), math.radians(142.12), math.radians(150.38)), False)
sketch3.addGeometry(Part.LineSegment(V(-166, 94, 0), V(-216, 110, 0)), False)
sketch3.addGeometry(Part.LineSegment(V(-216, 110, 0), V(-230, 75, 0)), False)
sketch3.addGeometry(Part.LineSegment(V(-230, 75, 0), V(-184, 51, 0)), False)
sketch3.addGeometry(Part.ArcOfCircle(Part.Circle(V(0, 0, 0), V(0, 0, 1), 190), math.radians(164.62), math.radians(172.88)), False)
sketch3.addGeometry(Part.LineSegment(V(-189, 24, 0), V(-241, 19, 0)), False)
sketch3.addGeometry(Part.LineSegment(V(-241, 19, 0), V(-241, -19, 0)), False)
sketch3.addGeometry(Part.LineSegment(V(-241, -19, 0), V(-189, -24, 0)), False)
sketch3.addGeometry(Part.ArcOfCircle(Part.Circle(V(0, 0, 0), V(0, 0, 1), 190), math.radians(-172.88), math.radians(-164.62)), False)
sketch3.addGeometry(Part.LineSegment(V(-184, -51, 0), V(-230, -75, 0)), False)
sketch3.addGeometry(Part.LineSegment(V(-230, -75, 0), V(-216, -110, 0)), False)
sketch3.addGeometry(Part.LineSegment(V(-216, -110, 0), V(-166, -94, 0)), False)
sketch3.addGeometry(Part.ArcOfCircle(Part.Circle(V(0, 0, 0), V(0, 0, 1), 191), math.radians(-150.38), math.radians(-142.12)), False)
sketch3.addGeometry(Part.LineSegment(V(-150, -117, 0), V(-184, -157, 0)), False)
sketch3.addGeometry(Part.LineSegment(V(-184, -157, 0), V(-157, -184, 0)), False)
sketch3.addGeometry(Part.LineSegment(V(-157, -184, 0), V(-117, -150, 0)), False)
sketch3.addGeometry(Part.ArcOfCircle(Part.Circle(V(0, 0, 0), V(0, 0, 1), 191), math.radians(-127.88), math.radians(-119.62)), False)
sketch3.addGeometry(Part.LineSegment(V(-94, -166, 0), V(-110, -216, 0)), False)
sketch3.addGeometry(Part.LineSegment(V(-110, -216, 0), V(-75, -230, 0)), False)
sketch3.addGeometry(Part.LineSegment(V(-75, -230, 0), V(-51, -184, 0)), False)
sketch3.addGeometry(Part.ArcOfCircle(Part.Circle(V(0, 0, 0), V(0, 0, 1), 190), math.radians(-105.38), math.radians(-97.12)), False)
sketch3.addGeometry(Part.LineSegment(V(-24, -189, 0), V(-19, -241, 0)), False)
sketch3.addGeometry(Part.LineSegment(V(-19, -241, 0), V(19, -241, 0)), False)
sketch3.addGeometry(Part.LineSegment(V(19, -241, 0), V(24, -189, 0)), False)
sketch3.addGeometry(Part.ArcOfCircle(Part.Circle(V(0, 0, 0), V(0, 0, 1), 190), math.radians(-82.88), math.radians(-74.62)), False)
sketch3.addGeometry(Part.LineSegment(V(51, -184, 0), V(75, -230, 0)), False)
sketch3.addGeometry(Part.LineSegment(V(75, -230, 0), V(110, -216, 0)), False)
sketch3.addGeometry(Part.LineSegment(V(110, -216, 0), V(94, -166, 0)), False)
sketch3.addGeometry(Part.ArcOfCircle(Part.Circle(V(0, 0, 0), V(0, 0, 1), 191), math.radians(-60.38), math.radians(-52.12)), False)
sketch3.addGeometry(Part.LineSegment(V(117, -150, 0), V(157, -184, 0)), False)
sketch3.addGeometry(Part.LineSegment(V(157, -184, 0), V(184, -157, 0)), False)
sketch3.addGeometry(Part.LineSegment(V(184, -157, 0), V(150, -117, 0)), False)
sketch3.addGeometry(Part.ArcOfCircle(Part.Circle(V(0, 0, 0), V(0, 0, 1), 191), math.radians(-37.88), math.radians(-29.62)), False)
sketch3.addGeometry(Part.LineSegment(V(166, -94, 0), V(216, -110, 0)), False)
sketch3.addGeometry(Part.LineSegment(V(216, -110, 0), V(230, -75, 0)), False)
sketch3.addGeometry(Part.LineSegment(V(230, -75, 0), V(184, -51, 0)), False)
sketch3.addGeometry(Part.Circle(V(0, 0, 0), V(0, 0, 1), 10), False)
sketch3.addConstraint(Sketcher.Constraint("Coincident", 0, 2, 1, 1))
sketch3.addConstraint(Sketcher.Constraint("Coincident", 1, 2, 2, 1))
sketch3.addConstraint(Sketcher.Constraint("Coincident", 2, 2, 3, 1))
sketch3.addConstraint(Sketcher.Constraint("Coincident", 3, 2, 4, 1))
sketch3.addConstraint(Sketcher.Constraint("Coincident", 4, 2, 5, 1))
sketch3.addConstraint(Sketcher.Constraint("Coincident", 5, 2, 6, 1))
sketch3.addConstraint(Sketcher.Constraint("Coincident", 6, 2, 7, 1))
sketch3.addConstraint(Sketcher.Constraint("Coincident", 7, 2, 8, 1))
sketch3.addConstraint(Sketcher.Constraint("Coincident", 8, 2, 9, 1))
sketch3.addConstraint(Sketcher.Constraint("Coincident", 9, 2, 10, 1))
sketch3.addConstraint(Sketcher.Constraint("Coincident", 10, 2, 11, 1))
sketch3.addConstraint(Sketcher.Constraint("Coincident", 11, 2, 12, 1))
sketch3.addConstraint(Sketcher.Constraint("Coincident", 12, 2, 13, 1))
sketch3.addConstraint(Sketcher.Constraint("Coincident", 13, 2, 14, 1))
sketch3.addConstraint(Sketcher.Constraint("Coincident", 14, 2, 15, 1))
sketch3.addConstraint(Sketcher.Constraint("Coincident", 15, 2, 16, 1))
sketch3.addConstraint(Sketcher.Constraint("Coincident", 16, 2, 17, 1))
sketch3.addConstraint(Sketcher.Constraint("Coincident", 17, 2, 18, 1))
sketch3.addConstraint(Sketcher.Constraint("Coincident", 18, 2, 19, 1))
sketch3.addConstraint(Sketcher.Constraint("Coincident", 19, 2, 20, 1))
sketch3.addConstraint(Sketcher.Constraint("Coincident", 20, 2, 21, 1))
sketch3.addConstraint(Sketcher.Constraint("Coincident", 21, 2, 22, 1))
sketch3.addConstraint(Sketcher.Constraint("Coincident", 22, 2, 23, 1))
sketch3.addConstraint(Sketcher.Constraint("Coincident", 23, 2, 24, 1))
sketch3.addConstraint(Sketcher.Constraint("Coincident", 24, 2, 25, 1))
sketch3.addConstraint(Sketcher.Constraint("Coincident", 25, 2, 26, 1))
sketch3.addConstraint(Sketcher.Constraint("Coincident", 26, 2, 27, 1))
sketch3.addConstraint(Sketcher.Constraint("Coincident", 27, 2, 28, 1))
sketch3.addConstraint(Sketcher.Constraint("Coincident", 28, 2, 29, 1))
sketch3.addConstraint(Sketcher.Constraint("Coincident", 29, 2, 30, 1))
sketch3.addConstraint(Sketcher.Constraint("Coincident", 30, 2, 31, 1))
sketch3.addConstraint(Sketcher.Constraint("Coincident", 31, 2, 32, 1))
sketch3.addConstraint(Sketcher.Constraint("Coincident", 32, 2, 33, 1))
sketch3.addConstraint(Sketcher.Constraint("Coincident", 33, 2, 34, 1))
sketch3.addConstraint(Sketcher.Constraint("Coincident", 34, 2, 35, 1))
sketch3.addConstraint(Sketcher.Constraint("Coincident", 35, 2, 36, 1))
sketch3.addConstraint(Sketcher.Constraint("Coincident", 36, 2, 37, 1))
sketch3.addConstraint(Sketcher.Constraint("Coincident", 37, 2, 38, 1))
sketch3.addConstraint(Sketcher.Constraint("Coincident", 38, 2, 39, 1))
sketch3.addConstraint(Sketcher.Constraint("Coincident", 39, 2, 40, 1))
sketch3.addConstraint(Sketcher.Constraint("Coincident", 40, 2, 41, 1))
sketch3.addConstraint(Sketcher.Constraint("Coincident", 41, 2, 42, 1))
sketch3.addConstraint(Sketcher.Constraint("Coincident", 42, 2, 43, 1))
sketch3.addConstraint(Sketcher.Constraint("Coincident", 43, 2, 44, 1))
sketch3.addConstraint(Sketcher.Constraint("Coincident", 44, 2, 45, 1))
sketch3.addConstraint(Sketcher.Constraint("Coincident", 45, 2, 46, 1))
sketch3.addConstraint(Sketcher.Constraint("Coincident", 46, 2, 47, 1))
sketch3.addConstraint(Sketcher.Constraint("Coincident", 47, 2, 48, 1))
sketch3.addConstraint(Sketcher.Constraint("Coincident", 48, 2, 49, 1))
sketch3.addConstraint(Sketcher.Constraint("Coincident", 49, 2, 50, 1))
sketch3.addConstraint(Sketcher.Constraint("Coincident", 50, 2, 51, 1))
sketch3.addConstraint(Sketcher.Constraint("Coincident", 51, 2, 52, 1))
sketch3.addConstraint(Sketcher.Constraint("Coincident", 52, 2, 53, 1))
sketch3.addConstraint(Sketcher.Constraint("Coincident", 53, 2, 54, 1))
sketch3.addConstraint(Sketcher.Constraint("Coincident", 54, 2, 55, 1))
sketch3.addConstraint(Sketcher.Constraint("Coincident", 55, 2, 56, 1))
sketch3.addConstraint(Sketcher.Constraint("Coincident", 56, 2, 57, 1))
sketch3.addConstraint(Sketcher.Constraint("Coincident", 57, 2, 58, 1))
sketch3.addConstraint(Sketcher.Constraint("Coincident", 58, 2, 59, 1))
sketch3.addConstraint(Sketcher.Constraint("Coincident", 59, 2, 60, 1))
sketch3.addConstraint(Sketcher.Constraint("Coincident", 60, 2, 61, 1))
sketch3.addConstraint(Sketcher.Constraint("Coincident", 61, 2, 62, 1))
sketch3.addConstraint(Sketcher.Constraint("Coincident", 62, 2, 63, 1))
sketch3.addConstraint(Sketcher.Constraint("Coincident", 63, 2, 0, 1))
sketch3.addConstraint(Sketcher.Constraint("Vertical", 2))
sketch3.addConstraint(Sketcher.Constraint("Horizontal", 18))
sketch3.addConstraint(Sketcher.Constraint("Vertical", 34))
sketch3.addConstraint(Sketcher.Constraint("Horizontal", 50))
sketch3.addConstraint(Sketcher.Constraint("Coincident", 64, 3, -1, 1))
sketch3.addConstraint(Sketcher.Constraint("Equal", 0, 4))
sketch3.addConstraint(Sketcher.Constraint("Equal", 8, 12))
sketch3.addConstraint(Sketcher.Constraint("Equal", 4, 16))
sketch3.addConstraint(Sketcher.Constraint("Equal", 16, 20))
sketch3.addConstraint(Sketcher.Constraint("Equal", 12, 24))
sketch3.addConstraint(Sketcher.Constraint("Equal", 24, 28))
sketch3.addConstraint(Sketcher.Constraint("Equal", 20, 32))
sketch3.addConstraint(Sketcher.Constraint("Equal", 32, 36))
sketch3.addConstraint(Sketcher.Constraint("Equal", 28, 40))
sketch3.addConstraint(Sketcher.Constraint("Equal", 40, 44))
sketch3.addConstraint(Sketcher.Constraint("Equal", 36, 48))
sketch3.addConstraint(Sketcher.Constraint("Equal", 48, 52))
sketch3.addConstraint(Sketcher.Constraint("Equal", 44, 56))
sketch3.addConstraint(Sketcher.Constraint("Equal", 56, 60))
sketch3.addConstraint(Sketcher.Constraint("Symmetric", 0, 3, 32, 3, -1, 1))
sketch3.addConstraint(Sketcher.Constraint("Symmetric", 4, 3, 36, 3, -1, 1))
sketch3.addConstraint(Sketcher.Constraint("Symmetric", 8, 3, 40, 3, -1, 1))
sketch3.addConstraint(Sketcher.Constraint("Symmetric", 12, 3, 44, 3, -1, 1))
sketch3.addConstraint(Sketcher.Constraint("Symmetric", 16, 3, 48, 3, -1, 1))
sketch3.addConstraint(Sketcher.Constraint("Symmetric", 20, 3, 52, 3, -1, 1))
sketch3.addConstraint(Sketcher.Constraint("Symmetric", 24, 3, 56, 3, -1, 1))
sketch3.addConstraint(Sketcher.Constraint("Symmetric", 28, 3, 60, 3, -1, 1))
sketch3.addConstraint(Sketcher.Constraint("Symmetric", 1, 2, 33, 2, -1, 1))
sketch3.addConstraint(Sketcher.Constraint("Symmetric", 5, 2, 37, 2, -1, 1))
sketch3.addConstraint(Sketcher.Constraint("Symmetric", 6, 2, 38, 2, -1, 1))
sketch3.addConstraint(Sketcher.Constraint("Symmetric", 9, 2, 41, 2, -1, 1))
sketch3.addConstraint(Sketcher.Constraint("Symmetric", 10, 2, 42, 2, -1, 1))
sketch3.addConstraint(Sketcher.Constraint("Symmetric", 13, 2, 45, 2, -1, 1))
sketch3.addConstraint(Sketcher.Constraint("Symmetric", 14, 2, 46, 2, -1, 1))
sketch3.addConstraint(Sketcher.Constraint("Symmetric", 17, 2, 49, 2, -1, 1))
sketch3.addConstraint(Sketcher.Constraint("Symmetric", 21, 2, 53, 2, -1, 1))
sketch3.addConstraint(Sketcher.Constraint("Symmetric", 22, 2, 54, 2, -1, 1))
sketch3.addConstraint(Sketcher.Constraint("Symmetric", 25, 2, 57, 2, -1, 1))
sketch3.addConstraint(Sketcher.Constraint("Symmetric", 26, 2, 58, 2, -1, 1))
sketch3.addConstraint(Sketcher.Constraint("Symmetric", 29, 2, 61, 2, -1, 1))
sketch3.addConstraint(Sketcher.Constraint("Symmetric", 30, 2, 62, 2, -1, 1))
sketch3.addConstraint(Sketcher.Constraint("Symmetric", 16, 3, 20, 3, -2))
sketch3.addConstraint(Sketcher.Constraint("Symmetric", 12, 3, 24, 3, -2))
sketch3.addConstraint(Sketcher.Constraint("Symmetric", 8, 3, 28, 3, -2))
sketch3.addConstraint(Sketcher.Constraint("Symmetric", 4, 3, 32, 3, -2))
sketch3.addConstraint(Sketcher.Constraint("Symmetric", 14, 2, 21, 2, -2))
sketch3.addConstraint(Sketcher.Constraint("Symmetric", 13, 2, 22, 2, -2))
sketch3.addConstraint(Sketcher.Constraint("Symmetric", 10, 2, 25, 2, -2))
sketch3.addConstraint(Sketcher.Constraint("Symmetric", 9, 2, 26, 2, -2))
sketch3.addConstraint(Sketcher.Constraint("Symmetric", 6, 2, 29, 2, -2))
sketch3.addConstraint(Sketcher.Constraint("Symmetric", 5, 2, 30, 2, -2))
sketch3.addConstraint(Sketcher.Constraint("Perpendicular", 1, 17))
sketch3.addConstraint(Sketcher.Constraint("Perpendicular", 3, 19))
sketch3.addConstraint(Sketcher.Constraint("Perpendicular", 5, 21))
sketch3.addConstraint(Sketcher.Constraint("Perpendicular", 6, 22))
sketch3.addConstraint(Sketcher.Constraint("Perpendicular", 7, 23))
sketch3.addConstraint(Sketcher.Constraint("Perpendicular", 9, 25))
sketch3.addConstraint(Sketcher.Constraint("Perpendicular", 10, 26))
sketch3.addConstraint(Sketcher.Constraint("Perpendicular", 11, 27))
sketch3.addConstraint(Sketcher.Constraint("Perpendicular", 13, 29))
sketch3.addConstraint(Sketcher.Constraint("Perpendicular", 15, 31))
sketch3.addConstraint(Sketcher.Constraint("Perpendicular", 17, 33))
sketch3.addConstraint(Sketcher.Constraint("Perpendicular", 19, 35))
sketch3.addConstraint(Sketcher.Constraint("Perpendicular", 21, 37))
sketch3.addConstraint(Sketcher.Constraint("Perpendicular", 23, 39))
sketch3.addConstraint(Sketcher.Constraint("Perpendicular", 25, 41))
sketch3.addConstraint(Sketcher.Constraint("Perpendicular", 27, 43))
sketch3.addConstraint(Sketcher.Constraint("Perpendicular", 29, 45))
sketch3.addConstraint(Sketcher.Constraint("Perpendicular", 31, 47))
sketch3.addConstraint(Sketcher.Constraint("Perpendicular", 33, 49))
sketch3.addConstraint(Sketcher.Constraint("Perpendicular", 35, 51))
sketch3.addConstraint(Sketcher.Constraint("Perpendicular", 37, 53))
sketch3.addConstraint(Sketcher.Constraint("Perpendicular", 39, 55))
sketch3.addConstraint(Sketcher.Constraint("Perpendicular", 41, 57))
sketch3.addConstraint(Sketcher.Constraint("Perpendicular", 43, 59))
sketch3.addConstraint(Sketcher.Constraint("Perpendicular", 45, 61))
sketch3.addConstraint(Sketcher.Constraint("Perpendicular", 47, 63))
sketch3.addConstraint(Sketcher.Constraint("Horizontal", 16, 2, 19, 2))
sketch3.addConstraint(Sketcher.Constraint("Horizontal", 15, 2, 20, 2))
sketch3.addConstraint(Sketcher.Constraint("Horizontal", 12, 2, 23, 2))
sketch3.addConstraint(Sketcher.Constraint("Horizontal", 11, 2, 24, 2))
sketch3.addConstraint(Sketcher.Constraint("Horizontal", 3, 2, 32, 2))
sketch3.addConstraint(Sketcher.Constraint("Horizontal", 2, 2, 33, 2))
sketch3.addConstraint(Sketcher.Constraint("Horizontal", 1, 2, 34, 2))
sketch3.addConstraint(Sketcher.Constraint("Horizontal", 48, 2, 51, 2))
sketch3.addConstraint(Sketcher.Constraint("Equal", 50, 2))
sketch3.addConstraint(Sketcher.Constraint("Equal", 3, 5))
sketch3.addConstraint(Sketcher.Constraint("Equal", 5, 7))
sketch3.addConstraint(Sketcher.Constraint("Equal", 7, 9))
sketch3.addConstraint(Sketcher.Constraint("Equal", 6, 10))
sketch3.addConstraint(Sketcher.Constraint("Equal", 9, 11))
sketch3.addConstraint(Sketcher.Constraint("Equal", 11, 13))
sketch3.addConstraint(Sketcher.Constraint("Equal", 10, 14))
sketch3.addConstraint(Sketcher.Constraint("Equal", 13, 15))
sketch3.addConstraint(Sketcher.Constraint("Equal", 15, 17))
sketch3.addConstraint(Sketcher.Constraint("DistanceX", 18, 2, 18, 1, Q("1.5 in")))
sketch3.addConstraint(Sketcher.Constraint("Angle", 1, Q("5 deg")))
sketch3.addConstraint(Sketcher.Constraint("Angle", 9, Q("50 deg")))
sketch3.addConstraint(Sketcher.Constraint("Distance", 6, Q("1.5 in")))
sketch3.addConstraint(Sketcher.Constraint("DistanceX", -1, 1, 1, 2, Q("9.5 in")))
sketch3.addConstraint(Sketcher.Constraint("DistanceY", -1, 1, 17, 2, Q("9.5 in")))
sketch3.addConstraint(Sketcher.Constraint("Angle", 5, Q("27.5 deg")))
sketch3.addConstraint(Sketcher.Constraint("Angle", 6, Q("112.5 deg")))
sketch3.addConstraint(Sketcher.Constraint("Angle", 7, Q("-162.500001 deg")))
sketch3.addConstraint(Sketcher.Constraint("Diameter", 64, Q("20 mm")))
sketch3.addConstraint(Sketcher.Constraint("Radius", 8, Q("190.500069 mm")))
sketch3.addConstraint(Sketcher.Constraint("Radius", 0, Q("190.499857 mm")))
sketch3.addConstraint(Sketcher.Constraint("DistanceX", -1, 1, 0, 3, Q("0.00014 mm")))
sketch3.addConstraint(Sketcher.Constraint("DistanceY", -1, 1, 16, 3, Q("0.00014 mm")))
sketch3.addConstraint(Sketcher.Constraint("DistanceX", -1, 1, 3, 2, Q("189.029629 mm")))
sketch3.addConstraint(Sketcher.Constraint("DistanceX", -1, 1, 5, 2, Q("230.222251 mm")))
sketch3.addConstraint(Sketcher.Constraint("DistanceX", -1, 1, 9, 2, Q("184.09525 mm")))
sketch3.addConstraint(Sketcher.Constraint("DistanceY", -1, 1, 9, 2, Q("157.154482 mm")))
sketch3.addConstraint(Sketcher.Constraint("DistanceY", -1, 1, 13, 2, Q("215.642012 mm")))
pad2 = body.newObject("PartDesign::Pad", "Pad001")
pad2.Profile = sketch3
pad2.Length = 20

doc.recompute()
